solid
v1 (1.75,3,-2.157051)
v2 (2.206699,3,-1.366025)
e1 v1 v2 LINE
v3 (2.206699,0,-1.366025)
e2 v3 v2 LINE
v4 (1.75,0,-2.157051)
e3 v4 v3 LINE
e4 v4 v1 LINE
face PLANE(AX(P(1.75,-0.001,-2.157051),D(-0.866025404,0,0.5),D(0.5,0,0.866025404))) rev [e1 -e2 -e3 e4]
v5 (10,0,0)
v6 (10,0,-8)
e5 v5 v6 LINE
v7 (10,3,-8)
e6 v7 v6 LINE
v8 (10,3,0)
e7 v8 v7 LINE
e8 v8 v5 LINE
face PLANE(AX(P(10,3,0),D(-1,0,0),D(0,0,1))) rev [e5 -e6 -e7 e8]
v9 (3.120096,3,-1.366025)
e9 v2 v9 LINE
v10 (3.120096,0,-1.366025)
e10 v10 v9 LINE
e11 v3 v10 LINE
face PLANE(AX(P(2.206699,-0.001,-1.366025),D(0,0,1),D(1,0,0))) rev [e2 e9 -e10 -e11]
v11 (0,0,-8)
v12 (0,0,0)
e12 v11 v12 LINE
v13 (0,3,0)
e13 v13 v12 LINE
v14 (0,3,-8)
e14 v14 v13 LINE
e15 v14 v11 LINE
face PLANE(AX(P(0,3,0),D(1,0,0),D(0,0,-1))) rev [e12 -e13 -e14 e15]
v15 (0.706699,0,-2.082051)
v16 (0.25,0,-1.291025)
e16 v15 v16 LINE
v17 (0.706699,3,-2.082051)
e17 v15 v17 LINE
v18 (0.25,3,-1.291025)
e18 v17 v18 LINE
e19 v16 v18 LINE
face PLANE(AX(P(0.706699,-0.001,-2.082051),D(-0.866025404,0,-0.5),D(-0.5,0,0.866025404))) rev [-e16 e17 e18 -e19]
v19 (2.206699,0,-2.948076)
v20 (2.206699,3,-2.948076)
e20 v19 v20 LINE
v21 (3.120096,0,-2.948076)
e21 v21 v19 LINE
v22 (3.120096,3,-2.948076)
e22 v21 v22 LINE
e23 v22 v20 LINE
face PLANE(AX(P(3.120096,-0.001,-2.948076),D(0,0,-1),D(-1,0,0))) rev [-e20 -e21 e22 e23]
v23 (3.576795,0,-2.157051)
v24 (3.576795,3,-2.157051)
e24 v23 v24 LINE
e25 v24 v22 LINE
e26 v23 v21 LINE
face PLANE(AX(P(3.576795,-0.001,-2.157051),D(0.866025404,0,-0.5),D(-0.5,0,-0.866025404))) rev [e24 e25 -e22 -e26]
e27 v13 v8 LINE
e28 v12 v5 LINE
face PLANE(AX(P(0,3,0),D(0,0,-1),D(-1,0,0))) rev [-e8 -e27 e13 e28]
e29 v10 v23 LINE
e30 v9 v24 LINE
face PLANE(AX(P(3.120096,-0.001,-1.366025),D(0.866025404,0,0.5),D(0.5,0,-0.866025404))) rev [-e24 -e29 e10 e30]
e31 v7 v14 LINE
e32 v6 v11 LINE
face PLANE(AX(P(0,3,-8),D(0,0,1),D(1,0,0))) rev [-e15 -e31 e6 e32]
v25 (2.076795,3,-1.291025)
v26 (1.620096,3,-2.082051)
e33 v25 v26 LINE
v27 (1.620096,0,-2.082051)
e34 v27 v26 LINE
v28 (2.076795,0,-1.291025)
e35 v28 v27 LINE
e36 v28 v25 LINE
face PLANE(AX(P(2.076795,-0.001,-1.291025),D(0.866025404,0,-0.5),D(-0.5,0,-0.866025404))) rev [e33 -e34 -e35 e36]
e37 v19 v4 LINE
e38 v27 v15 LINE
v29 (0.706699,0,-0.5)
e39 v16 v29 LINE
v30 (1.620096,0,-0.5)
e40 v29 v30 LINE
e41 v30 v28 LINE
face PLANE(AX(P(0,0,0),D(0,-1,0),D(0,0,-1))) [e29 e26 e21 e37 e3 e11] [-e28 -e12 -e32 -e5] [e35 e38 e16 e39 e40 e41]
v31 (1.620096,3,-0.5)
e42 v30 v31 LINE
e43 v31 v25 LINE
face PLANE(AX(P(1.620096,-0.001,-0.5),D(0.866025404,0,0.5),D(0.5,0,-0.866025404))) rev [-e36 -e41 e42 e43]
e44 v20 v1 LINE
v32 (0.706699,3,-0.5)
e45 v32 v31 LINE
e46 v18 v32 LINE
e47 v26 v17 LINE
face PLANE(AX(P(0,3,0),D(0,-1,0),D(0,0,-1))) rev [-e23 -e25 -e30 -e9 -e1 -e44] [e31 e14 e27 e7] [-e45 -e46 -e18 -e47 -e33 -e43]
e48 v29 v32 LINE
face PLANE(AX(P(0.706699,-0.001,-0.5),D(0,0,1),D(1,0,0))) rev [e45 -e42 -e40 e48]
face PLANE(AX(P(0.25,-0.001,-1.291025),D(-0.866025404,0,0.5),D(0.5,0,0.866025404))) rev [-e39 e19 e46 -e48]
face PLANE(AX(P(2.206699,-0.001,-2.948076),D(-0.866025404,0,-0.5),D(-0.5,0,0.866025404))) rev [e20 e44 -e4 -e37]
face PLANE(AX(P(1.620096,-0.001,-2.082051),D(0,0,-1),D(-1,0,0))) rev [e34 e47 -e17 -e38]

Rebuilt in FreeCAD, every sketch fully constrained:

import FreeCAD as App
import Part
import Sketcher
from FreeCAD import Vector
Q = App.Units.Quantity

doc = App.newDocument("Part")
body = doc.addObject("PartDesign::Body", "Body")

# Sketch on XZ plane
sketch1 = body.newObject("Sketcher::SketchObject", "Sketch")
sketch1.AttachmentSupport = (doc.getObject("XZ_Plane"), [""])
sketch1.MapMode = "FlatFace"
sketch1.addGeometry(Part.LineSegment(Vector(0, -8, 0), Vector(0, 0, 0)), False)
sketch1.addGeometry(Part.LineSegment(Vector(0, 0, 0), Vector(10, 0, 0)), False)
sketch1.addGeometry(Part.LineSegment(Vector(10, 0, 0), Vector(10, -8, 0)), False)
sketch1.addGeometry(Part.LineSegment(Vector(10, -8, 0), Vector(0, -8, 0)), False)
sketch1.addConstraint(Sketcher.Constraint("Coincident", 0, 2, 1, 1))
sketch1.addConstraint(Sketcher.Constraint("Coincident", 1, 2, 2, 1))
sketch1.addConstraint(Sketcher.Constraint("Coincident", 2, 2, 3, 1))
sketch1.addConstraint(Sketcher.Constraint("Coincident", 3, 2, 0, 1))
sketch1.addConstraint(Sketcher.Constraint("Vertical", 0))
sketch1.addConstraint(Sketcher.Constraint("Horizontal", 1))
sketch1.addConstraint(Sketcher.Constraint("Vertical", 2))
sketch1.addConstraint(Sketcher.Constraint("Horizontal", 3))
sketch1.addConstraint(Sketcher.Constraint("Coincident", 0, 2, -1, 1))
sketch1.addConstraint(Sketcher.Constraint("DistanceX", 1, 1, 1, 2, 10.0))
sketch1.addConstraint(Sketcher.Constraint("DistanceY", 0, 1, 0, 2, 8.0))
pad1 = body.newObject("PartDesign::Pad", "Pad")
pad1.Profile = sketch1
pad1.Length = 3
pad1.Reversed = True

# Sketch on XZ plane
sketch2 = body.newObject("Sketcher::SketchObject", "Sketch001")
sketch2.AttachmentSupport = (doc.getObject("XZ_Plane"), [""])
sketch2.MapMode = "FlatFace"
sketch2.AttachmentOffset = App.Placement(Vector(0, 0, -3), App.Rotation())
sketch2.addGeometry(Part.LineSegment(Vector(2.1, -1.3, 0), Vector(1.6, -2.1, 0)), False)
sketch2.addGeometry(Part.LineSegment(Vector(1.6, -2.1, 0), Vector(0.7, -2.1, 0)), False)
sketch2.addGeometry(Part.LineSegment(Vector(0.7, -2.1, 0), Vector(0.2, -1.3, 0)), False)
sketch2.addGeometry(Part.LineSegment(Vector(0.2, -1.3, 0), Vector(0.7, -0.5, 0)), False)
sketch2.addGeometry(Part.LineSegment(Vector(0.7, -0.5, 0), Vector(1.6, -0.5, 0)), False)
sketch2.addGeometry(Part.LineSegment(Vector(1.6, -0.5, 0), Vector(2.1, -1.3, 0)), False)
sketch2.addConstraint(Sketcher.Constraint("Coincident", 0, 2, 1, 1))
sketch2.addConstraint(Sketcher.Constraint("Coincident", 1, 2, 2, 1))
sketch2.addConstraint(Sketcher.Constraint("Coincident", 2, 2, 3, 1))
sketch2.addConstraint(Sketcher.Constraint("Coincident", 3, 2, 4, 1))
sketch2.addConstraint(Sketcher.Constraint("Coincident", 4, 2, 5, 1))
sketch2.addConstraint(Sketcher.Constraint("Coincident", 5, 2, 0, 1))
sketch2.addConstraint(Sketcher.Constraint("Horizontal", 1))
sketch2.addConstraint(Sketcher.Constraint("Horizontal", 4))
sketch2.addConstraint(Sketcher.Constraint("Parallel", 0, 3))
sketch2.addConstraint(Sketcher.Constraint("Parallel", 2, 5))
sketch2.addConstraint(Sketcher.Constraint("Horizontal", 2, 2, 5, 2))
sketch2.addConstraint(Sketcher.Constraint("Vertical", 1, 2, 3, 2))
sketch2.addConstraint(Sketcher.Constraint("Vertical", 0, 2, 4, 2))
sketch2.addConstraint(Sketcher.Constraint("Angle", 0, Q("-120 deg")))
sketch2.addConstraint(Sketcher.Constraint("DistanceY", 3, 2, -1, 1, 0.5))
sketch2.addConstraint(Sketcher.Constraint("DistanceX", -1, 1, 2, 2, 0.25))
sketch2.addConstraint(Sketcher.Constraint("DistanceX", -1, 1, 1, 2, 0.706699))
sketch2.addConstraint(Sketcher.Constraint("DistanceX", 1, 2, 1, 1, 0.913397))
pocket1 = body.newObject("PartDesign::Pocket", "Pocket")
pocket1.Profile = sketch2
pocket1.Type = "UpToFirst"
pocket1.Reversed = True

# Sketch on XZ plane
sketch3 = body.newObject("Sketcher::SketchObject", "Sketch002")
sketch3.AttachmentSupport = (doc.getObject("XZ_Plane"), [""])
sketch3.MapMode = "FlatFace"
sketch3.AttachmentOffset = App.Placement(Vector(0, 0, -3), App.Rotation())
sketch3.addGeometry(Part.LineSegment(Vector(3.6, -2.2, 0), Vector(3.1, -2.9, 0)), False)
sketch3.addGeometry(Part.LineSegment(Vector(3.1, -2.9, 0), Vector(2.2, -2.9, 0)), False)
sketch3.addGeometry(Part.LineSegment(Vector(2.2, -2.9, 0), Vector(1.8, -2.2, 0)), False)
sketch3.addGeometry(Part.LineSegment(Vector(1.8, -2.2, 0), Vector(2.2, -1.4, 0)), False)
sketch3.addGeometry(Part.LineSegment(Vector(2.2, -1.4, 0), Vector(3.1, -1.4, 0)), False)
sketch3.addGeometry(Part.LineSegment(Vector(3.1, -1.4, 0), Vector(3.6, -2.2, 0)), False)
sketch3.addConstraint(Sketcher.Constraint("Coincident", 0, 2, 1, 1))
sketch3.addConstraint(Sketcher.Constraint("Coincident", 1, 2, 2, 1))
sketch3.addConstraint(Sketcher.Constraint("Coincident", 2, 2, 3, 1))
sketch3.addConstraint(Sketcher.Constraint("Coincident", 3, 2, 4, 1))
sketch3.addConstraint(Sketcher.Constraint("Coincident", 4, 2, 5, 1))
sketch3.addConstraint(Sketcher.Constraint("Coincident", 5, 2, 0, 1))
sketch3.addConstraint(Sketcher.Constraint("Horizontal", 1))
sketch3.addConstraint(Sketcher.Constraint("Horizontal", 4))
sketch3.addConstraint(Sketcher.Constraint("Parallel", 0, 3))
sketch3.addConstraint(Sketcher.Constraint("Parallel", 2, 5))
sketch3.addConstraint(Sketcher.Constraint("Horizontal", 2, 2, 5, 2))
sketch3.addConstraint(Sketcher.Constraint("Vertical", 1, 2, 3, 2))
sketch3.addConstraint(Sketcher.Constraint("Vertical", 0, 2, 4, 2))
sketch3.addConstraint(Sketcher.Constraint("Angle", 0, Q("-120 deg")))
sketch3.addConstraint(Sketcher.Constraint("DistanceX", -1, 1, 2, 2, 1.75))
sketch3.addConstraint(Sketcher.Constraint("DistanceX", -1, 1, 1, 2, 2.206699))
sketch3.addConstraint(Sketcher.Constraint("DistanceX", 1, 2, 1, 1, 0.913397))
sketch3.addConstraint(Sketcher.Constraint("DistanceY", 2, 2, -1, 1, 2.157051))
pocket2 = body.newObject("PartDesign::Pocket", "Pocket001")
pocket2.Profile = sketch3
pocket2.Type = "UpToFirst"
pocket2.Reversed = True

doc.recompute()
